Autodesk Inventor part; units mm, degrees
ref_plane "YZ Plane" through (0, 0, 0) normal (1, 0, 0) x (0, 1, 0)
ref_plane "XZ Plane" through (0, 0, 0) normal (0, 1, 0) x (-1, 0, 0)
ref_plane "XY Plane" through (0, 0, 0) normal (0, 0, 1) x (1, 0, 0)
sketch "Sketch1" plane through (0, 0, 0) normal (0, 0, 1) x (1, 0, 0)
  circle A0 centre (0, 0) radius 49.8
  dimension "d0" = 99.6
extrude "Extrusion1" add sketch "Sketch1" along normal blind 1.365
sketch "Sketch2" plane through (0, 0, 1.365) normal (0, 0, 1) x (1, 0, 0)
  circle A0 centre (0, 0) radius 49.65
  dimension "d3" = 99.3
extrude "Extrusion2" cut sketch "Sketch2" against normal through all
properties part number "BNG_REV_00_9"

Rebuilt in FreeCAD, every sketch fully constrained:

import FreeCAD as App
import Part
import Sketcher
from FreeCAD import Vector
Q = App.Units.Quantity

doc = App.newDocument("Part")
body = doc.addObject("PartDesign::Body", "Body")

sketch1 = doc.addObject("Sketcher::SketchObject", "Sketch")
body.addObject(sketch1)
sketch1.AttachmentSupport = (doc.XY_Plane, [""])
sketch1.MapMode = "FlatFace"
sketch1.addGeometry(Part.Circle(Vector(0, 0, 0), Vector(0, 0, 1), 50), False)
sketch1.addConstraint([
    Sketcher.Constraint("Coincident", 0, 3, -1, 1),
    Sketcher.Constraint("Diameter", 0, Q("99.6 mm")),
])
pad1 = doc.addObject("PartDesign::Pad", "Pad")
body.addObject(pad1)
pad1.Profile = sketch1
pad1.Length = 1.365

sketch2 = doc.addObject("Sketcher::SketchObject", "Sketch001")
body.addObject(sketch2)
sketch2.AttachmentSupport = (doc.XY_Plane, [""])
sketch2.MapMode = "FlatFace"
sketch2.AttachmentOffset = App.Placement(Vector(0, 0, 1.365), App.Rotation())
sketch2.addGeometry(Part.Circle(Vector(0, 0, 0), Vector(0, 0, 1), 50), False)
sketch2.addConstraint([
    Sketcher.Constraint("Coincident", 0, 3, -1, 1),
    Sketcher.Constraint("Diameter", 0, Q("99.3 mm")),
])
pocket1 = doc.addObject("PartDesign::Pocket", "Pocket")
body.addObject(pocket1)
pocket1.Profile = sketch2
pocket1.Type = "ThroughAll"

doc.recompute()
